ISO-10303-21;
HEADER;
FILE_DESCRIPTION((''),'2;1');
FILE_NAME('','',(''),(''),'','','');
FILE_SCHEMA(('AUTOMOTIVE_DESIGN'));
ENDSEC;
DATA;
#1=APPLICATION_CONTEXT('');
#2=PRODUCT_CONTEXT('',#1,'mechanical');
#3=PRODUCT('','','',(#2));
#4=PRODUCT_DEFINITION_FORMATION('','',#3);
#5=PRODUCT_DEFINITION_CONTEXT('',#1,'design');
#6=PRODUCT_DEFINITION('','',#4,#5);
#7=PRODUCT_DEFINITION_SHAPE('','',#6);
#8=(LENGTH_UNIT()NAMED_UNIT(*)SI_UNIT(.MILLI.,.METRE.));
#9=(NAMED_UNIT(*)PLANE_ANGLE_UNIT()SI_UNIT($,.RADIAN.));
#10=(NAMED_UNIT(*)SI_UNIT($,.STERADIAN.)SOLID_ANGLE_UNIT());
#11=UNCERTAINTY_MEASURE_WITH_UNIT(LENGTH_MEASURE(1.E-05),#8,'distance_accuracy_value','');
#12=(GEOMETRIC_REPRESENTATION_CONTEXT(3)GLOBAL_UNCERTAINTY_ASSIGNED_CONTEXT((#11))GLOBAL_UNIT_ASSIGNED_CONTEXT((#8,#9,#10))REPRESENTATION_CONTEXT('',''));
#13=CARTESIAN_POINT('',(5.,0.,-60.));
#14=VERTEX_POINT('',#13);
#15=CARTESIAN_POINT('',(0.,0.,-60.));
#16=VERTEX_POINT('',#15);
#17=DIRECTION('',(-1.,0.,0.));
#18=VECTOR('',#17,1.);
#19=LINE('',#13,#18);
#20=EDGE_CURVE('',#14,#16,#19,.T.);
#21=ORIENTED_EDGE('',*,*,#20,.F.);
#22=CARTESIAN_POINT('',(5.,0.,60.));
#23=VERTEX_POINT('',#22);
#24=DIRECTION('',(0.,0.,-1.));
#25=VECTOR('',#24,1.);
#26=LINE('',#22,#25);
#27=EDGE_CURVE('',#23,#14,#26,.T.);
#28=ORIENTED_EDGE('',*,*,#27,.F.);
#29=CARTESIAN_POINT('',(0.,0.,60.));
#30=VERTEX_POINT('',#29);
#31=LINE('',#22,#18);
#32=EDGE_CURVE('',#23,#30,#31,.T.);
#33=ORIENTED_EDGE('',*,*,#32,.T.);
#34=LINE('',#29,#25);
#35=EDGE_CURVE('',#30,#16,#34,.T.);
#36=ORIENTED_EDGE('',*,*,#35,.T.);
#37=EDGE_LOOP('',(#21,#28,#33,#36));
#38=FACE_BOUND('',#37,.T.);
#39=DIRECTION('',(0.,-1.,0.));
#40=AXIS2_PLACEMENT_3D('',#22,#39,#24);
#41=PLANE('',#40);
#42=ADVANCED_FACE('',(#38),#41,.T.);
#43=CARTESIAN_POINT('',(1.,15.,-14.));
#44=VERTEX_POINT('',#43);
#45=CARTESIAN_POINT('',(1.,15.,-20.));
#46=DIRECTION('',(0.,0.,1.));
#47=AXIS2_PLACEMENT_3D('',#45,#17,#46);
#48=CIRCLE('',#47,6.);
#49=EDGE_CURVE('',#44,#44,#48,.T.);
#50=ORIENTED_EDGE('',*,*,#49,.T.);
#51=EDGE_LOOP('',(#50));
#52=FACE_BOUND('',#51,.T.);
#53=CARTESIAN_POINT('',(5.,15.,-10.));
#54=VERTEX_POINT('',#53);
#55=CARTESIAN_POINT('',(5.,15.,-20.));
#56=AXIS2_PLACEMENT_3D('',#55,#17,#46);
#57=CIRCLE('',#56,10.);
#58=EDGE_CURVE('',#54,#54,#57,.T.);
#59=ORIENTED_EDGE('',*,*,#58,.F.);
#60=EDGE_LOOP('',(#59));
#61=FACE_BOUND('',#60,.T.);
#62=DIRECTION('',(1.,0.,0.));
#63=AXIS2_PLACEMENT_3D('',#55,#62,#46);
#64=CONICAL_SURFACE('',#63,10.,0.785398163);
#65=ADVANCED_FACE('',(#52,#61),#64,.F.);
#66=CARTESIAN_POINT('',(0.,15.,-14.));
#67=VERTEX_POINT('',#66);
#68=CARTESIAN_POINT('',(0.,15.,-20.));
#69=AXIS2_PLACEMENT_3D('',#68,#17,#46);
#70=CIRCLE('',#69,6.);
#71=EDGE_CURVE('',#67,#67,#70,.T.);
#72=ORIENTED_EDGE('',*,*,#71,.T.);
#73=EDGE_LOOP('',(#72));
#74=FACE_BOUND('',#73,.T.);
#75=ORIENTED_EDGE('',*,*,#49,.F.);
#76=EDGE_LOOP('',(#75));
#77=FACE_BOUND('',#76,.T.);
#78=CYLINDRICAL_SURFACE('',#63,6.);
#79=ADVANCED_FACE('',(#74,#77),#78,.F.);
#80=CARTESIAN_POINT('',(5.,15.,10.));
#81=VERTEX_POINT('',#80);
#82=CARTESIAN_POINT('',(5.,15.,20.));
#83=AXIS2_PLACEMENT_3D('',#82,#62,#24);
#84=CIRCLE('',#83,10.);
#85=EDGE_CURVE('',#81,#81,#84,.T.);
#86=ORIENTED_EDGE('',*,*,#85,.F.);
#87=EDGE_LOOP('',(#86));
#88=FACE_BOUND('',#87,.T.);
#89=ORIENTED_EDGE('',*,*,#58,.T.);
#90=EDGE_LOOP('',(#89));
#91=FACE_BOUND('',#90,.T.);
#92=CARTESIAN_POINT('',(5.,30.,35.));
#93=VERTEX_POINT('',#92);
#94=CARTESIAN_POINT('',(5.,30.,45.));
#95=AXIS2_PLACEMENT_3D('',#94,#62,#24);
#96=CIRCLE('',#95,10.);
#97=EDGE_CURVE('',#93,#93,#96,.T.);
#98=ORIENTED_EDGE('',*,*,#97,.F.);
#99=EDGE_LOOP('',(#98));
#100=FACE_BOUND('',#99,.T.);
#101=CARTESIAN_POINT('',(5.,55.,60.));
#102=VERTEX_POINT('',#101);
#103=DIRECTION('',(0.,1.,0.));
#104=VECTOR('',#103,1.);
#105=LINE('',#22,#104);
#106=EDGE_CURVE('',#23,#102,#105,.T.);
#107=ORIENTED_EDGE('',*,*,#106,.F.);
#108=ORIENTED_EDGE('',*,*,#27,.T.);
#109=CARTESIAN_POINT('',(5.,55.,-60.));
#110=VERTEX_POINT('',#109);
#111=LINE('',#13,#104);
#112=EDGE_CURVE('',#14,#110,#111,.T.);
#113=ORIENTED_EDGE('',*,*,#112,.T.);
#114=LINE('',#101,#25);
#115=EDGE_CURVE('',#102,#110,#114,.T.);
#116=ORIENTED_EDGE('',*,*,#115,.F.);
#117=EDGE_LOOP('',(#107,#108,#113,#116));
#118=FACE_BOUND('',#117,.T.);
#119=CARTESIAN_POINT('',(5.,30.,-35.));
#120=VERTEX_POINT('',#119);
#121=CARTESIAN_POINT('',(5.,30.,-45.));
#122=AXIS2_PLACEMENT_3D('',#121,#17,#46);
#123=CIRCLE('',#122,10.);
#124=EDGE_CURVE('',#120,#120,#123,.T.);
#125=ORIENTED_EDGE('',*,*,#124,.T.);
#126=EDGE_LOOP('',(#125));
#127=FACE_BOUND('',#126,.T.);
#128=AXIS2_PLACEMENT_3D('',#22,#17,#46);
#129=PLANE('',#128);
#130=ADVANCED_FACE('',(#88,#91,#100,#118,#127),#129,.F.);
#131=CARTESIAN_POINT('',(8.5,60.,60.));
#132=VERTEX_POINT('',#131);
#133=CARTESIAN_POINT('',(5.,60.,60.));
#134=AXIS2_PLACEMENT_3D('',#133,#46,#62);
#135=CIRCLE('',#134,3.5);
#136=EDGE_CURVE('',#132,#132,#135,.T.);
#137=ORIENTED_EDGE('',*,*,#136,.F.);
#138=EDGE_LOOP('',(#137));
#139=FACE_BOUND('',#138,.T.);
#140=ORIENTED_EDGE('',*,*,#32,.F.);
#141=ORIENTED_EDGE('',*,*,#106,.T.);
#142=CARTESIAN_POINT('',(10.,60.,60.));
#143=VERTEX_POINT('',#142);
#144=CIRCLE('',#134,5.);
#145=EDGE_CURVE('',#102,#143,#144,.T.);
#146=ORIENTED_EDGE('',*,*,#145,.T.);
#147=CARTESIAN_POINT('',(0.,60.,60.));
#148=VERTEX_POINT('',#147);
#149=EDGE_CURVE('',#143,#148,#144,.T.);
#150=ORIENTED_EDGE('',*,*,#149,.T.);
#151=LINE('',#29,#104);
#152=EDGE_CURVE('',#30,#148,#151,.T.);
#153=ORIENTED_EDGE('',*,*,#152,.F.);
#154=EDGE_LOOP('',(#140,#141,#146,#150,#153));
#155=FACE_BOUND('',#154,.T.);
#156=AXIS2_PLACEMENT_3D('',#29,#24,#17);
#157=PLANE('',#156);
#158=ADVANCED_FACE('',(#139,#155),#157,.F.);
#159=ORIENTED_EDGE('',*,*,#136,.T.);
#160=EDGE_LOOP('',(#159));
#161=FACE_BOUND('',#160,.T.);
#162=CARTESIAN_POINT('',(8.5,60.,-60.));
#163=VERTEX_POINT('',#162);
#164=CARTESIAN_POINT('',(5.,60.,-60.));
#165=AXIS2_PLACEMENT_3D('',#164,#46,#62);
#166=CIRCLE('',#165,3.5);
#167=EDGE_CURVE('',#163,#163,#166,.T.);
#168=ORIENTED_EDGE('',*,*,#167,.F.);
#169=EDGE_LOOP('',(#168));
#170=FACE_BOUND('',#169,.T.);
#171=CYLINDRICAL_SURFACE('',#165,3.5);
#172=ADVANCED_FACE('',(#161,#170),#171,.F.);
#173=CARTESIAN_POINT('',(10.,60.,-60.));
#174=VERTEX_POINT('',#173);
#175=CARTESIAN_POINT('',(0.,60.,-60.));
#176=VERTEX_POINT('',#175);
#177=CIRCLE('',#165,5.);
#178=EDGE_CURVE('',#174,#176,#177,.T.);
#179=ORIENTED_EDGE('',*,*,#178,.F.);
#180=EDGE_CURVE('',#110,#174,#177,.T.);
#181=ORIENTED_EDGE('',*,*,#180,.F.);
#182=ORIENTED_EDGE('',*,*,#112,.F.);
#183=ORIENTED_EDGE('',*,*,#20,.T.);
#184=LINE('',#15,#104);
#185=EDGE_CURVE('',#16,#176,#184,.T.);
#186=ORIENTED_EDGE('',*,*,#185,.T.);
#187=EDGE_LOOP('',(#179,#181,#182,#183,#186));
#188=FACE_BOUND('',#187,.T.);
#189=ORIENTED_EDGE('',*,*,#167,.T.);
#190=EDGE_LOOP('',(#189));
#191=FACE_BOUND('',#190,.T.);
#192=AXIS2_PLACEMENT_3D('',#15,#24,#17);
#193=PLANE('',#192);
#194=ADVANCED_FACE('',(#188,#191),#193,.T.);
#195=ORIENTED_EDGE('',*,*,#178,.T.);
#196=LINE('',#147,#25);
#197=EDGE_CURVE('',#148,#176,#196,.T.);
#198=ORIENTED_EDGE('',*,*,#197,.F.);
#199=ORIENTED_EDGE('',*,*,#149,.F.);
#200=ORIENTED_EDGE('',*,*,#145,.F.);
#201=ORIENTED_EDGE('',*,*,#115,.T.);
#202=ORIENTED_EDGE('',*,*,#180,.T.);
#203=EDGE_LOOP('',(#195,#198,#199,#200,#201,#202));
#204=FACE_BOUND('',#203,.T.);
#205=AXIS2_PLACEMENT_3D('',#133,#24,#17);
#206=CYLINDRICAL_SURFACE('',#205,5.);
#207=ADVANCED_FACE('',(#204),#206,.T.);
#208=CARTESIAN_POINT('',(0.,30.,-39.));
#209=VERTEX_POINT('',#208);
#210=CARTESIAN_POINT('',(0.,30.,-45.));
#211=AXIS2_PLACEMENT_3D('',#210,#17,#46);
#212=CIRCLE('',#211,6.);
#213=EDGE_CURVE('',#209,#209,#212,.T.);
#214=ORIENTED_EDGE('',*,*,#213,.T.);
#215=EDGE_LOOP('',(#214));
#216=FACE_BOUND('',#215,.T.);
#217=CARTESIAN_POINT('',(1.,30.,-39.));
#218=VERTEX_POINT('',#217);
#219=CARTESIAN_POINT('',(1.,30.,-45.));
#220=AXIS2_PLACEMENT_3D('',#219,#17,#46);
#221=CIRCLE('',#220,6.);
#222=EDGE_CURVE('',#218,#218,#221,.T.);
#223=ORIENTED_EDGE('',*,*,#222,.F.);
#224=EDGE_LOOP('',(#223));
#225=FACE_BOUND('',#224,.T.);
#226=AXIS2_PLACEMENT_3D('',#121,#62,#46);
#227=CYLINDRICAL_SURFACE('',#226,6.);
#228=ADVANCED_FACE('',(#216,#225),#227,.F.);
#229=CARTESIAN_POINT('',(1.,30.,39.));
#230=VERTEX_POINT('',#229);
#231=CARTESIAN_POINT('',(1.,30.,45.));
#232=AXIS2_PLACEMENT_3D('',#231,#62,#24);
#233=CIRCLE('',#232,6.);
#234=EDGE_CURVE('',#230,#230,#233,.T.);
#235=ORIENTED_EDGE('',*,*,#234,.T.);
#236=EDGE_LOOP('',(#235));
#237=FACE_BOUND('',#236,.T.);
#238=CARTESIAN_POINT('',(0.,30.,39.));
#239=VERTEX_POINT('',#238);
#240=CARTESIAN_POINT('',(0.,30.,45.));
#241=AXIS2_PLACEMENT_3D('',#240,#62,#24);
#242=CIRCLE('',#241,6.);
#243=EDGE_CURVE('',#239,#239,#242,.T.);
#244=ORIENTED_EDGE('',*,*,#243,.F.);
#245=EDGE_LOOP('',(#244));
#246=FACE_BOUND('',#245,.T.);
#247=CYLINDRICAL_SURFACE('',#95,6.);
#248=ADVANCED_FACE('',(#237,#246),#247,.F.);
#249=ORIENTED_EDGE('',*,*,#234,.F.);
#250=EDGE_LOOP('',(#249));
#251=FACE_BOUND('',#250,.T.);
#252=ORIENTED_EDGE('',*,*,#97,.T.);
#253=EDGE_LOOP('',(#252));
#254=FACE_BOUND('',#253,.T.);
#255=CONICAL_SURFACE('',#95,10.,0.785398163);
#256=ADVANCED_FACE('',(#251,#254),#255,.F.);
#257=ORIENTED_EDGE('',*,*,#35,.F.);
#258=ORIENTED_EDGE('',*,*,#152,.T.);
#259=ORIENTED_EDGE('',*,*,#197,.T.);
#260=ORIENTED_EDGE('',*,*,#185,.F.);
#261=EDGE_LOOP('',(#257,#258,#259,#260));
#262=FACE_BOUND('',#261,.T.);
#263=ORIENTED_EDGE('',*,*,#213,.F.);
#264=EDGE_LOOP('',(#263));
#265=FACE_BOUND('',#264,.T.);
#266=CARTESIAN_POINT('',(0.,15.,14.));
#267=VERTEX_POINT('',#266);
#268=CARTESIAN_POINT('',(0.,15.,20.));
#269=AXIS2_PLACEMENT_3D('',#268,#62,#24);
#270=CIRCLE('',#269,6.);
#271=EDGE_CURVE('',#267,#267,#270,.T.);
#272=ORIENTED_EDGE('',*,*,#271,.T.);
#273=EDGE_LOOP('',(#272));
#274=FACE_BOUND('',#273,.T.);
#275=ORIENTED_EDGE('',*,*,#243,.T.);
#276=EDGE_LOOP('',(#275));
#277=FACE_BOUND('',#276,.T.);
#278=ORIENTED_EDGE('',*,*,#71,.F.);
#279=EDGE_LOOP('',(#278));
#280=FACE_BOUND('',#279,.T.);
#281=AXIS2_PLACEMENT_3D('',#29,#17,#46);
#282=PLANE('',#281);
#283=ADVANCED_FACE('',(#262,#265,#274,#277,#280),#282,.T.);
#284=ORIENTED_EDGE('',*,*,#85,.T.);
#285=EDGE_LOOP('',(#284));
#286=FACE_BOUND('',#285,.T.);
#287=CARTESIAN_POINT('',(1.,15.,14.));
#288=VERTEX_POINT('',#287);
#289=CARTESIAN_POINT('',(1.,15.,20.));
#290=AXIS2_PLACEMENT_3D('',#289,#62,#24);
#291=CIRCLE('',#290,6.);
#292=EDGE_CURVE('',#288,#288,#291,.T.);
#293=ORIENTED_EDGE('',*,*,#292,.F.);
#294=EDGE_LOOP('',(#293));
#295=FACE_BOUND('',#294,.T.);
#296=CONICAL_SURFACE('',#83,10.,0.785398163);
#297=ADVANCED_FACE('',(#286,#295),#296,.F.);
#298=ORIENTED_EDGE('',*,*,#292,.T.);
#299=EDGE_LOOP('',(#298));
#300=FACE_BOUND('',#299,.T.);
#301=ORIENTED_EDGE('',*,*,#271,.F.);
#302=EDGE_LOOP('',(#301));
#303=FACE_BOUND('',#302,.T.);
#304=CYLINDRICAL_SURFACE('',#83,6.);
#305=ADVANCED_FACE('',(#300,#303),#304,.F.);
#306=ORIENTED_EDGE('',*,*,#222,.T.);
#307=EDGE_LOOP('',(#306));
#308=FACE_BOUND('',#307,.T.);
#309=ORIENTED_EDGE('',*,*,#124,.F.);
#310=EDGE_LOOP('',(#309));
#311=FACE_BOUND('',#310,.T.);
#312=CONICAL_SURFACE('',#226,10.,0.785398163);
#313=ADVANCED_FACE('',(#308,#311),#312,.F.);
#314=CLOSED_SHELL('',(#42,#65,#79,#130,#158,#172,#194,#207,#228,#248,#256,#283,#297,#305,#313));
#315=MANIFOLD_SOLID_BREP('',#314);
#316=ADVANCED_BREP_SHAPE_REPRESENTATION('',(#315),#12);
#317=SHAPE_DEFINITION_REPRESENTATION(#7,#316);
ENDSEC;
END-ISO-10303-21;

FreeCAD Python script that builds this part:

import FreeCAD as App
import Part
import Sketcher
from FreeCAD import Vector
Q = App.Units.Quantity

doc = App.newDocument("Part")
params = doc.addObject("Spreadsheet::Sheet", "Params")
for row, (alias, value) in enumerate([
    ("sketch1_width", "5 mm"),
    ("sketch1_height", "60 mm"),
    ("pad1_length", "120 mm"),
    ("sketch2_diameter", "10 mm"),
    ("sketch3_height", "120 mm"),
    ("sketch4_diameter", "7 mm"),
    ("sketch5_width", "5 mm"),
    ("sketch5_width2", "1 mm"),
    ("sketch5_height", "10 mm"),
    ("sketch5_height2", "6 mm"),
    ("groove_angle", "360 deg"),
    ("linearpattern_pitch", "29.154759 mm"),
    ("sketch6_width", "5 mm"),
    ("sketch6_width2", "1 mm"),
    ("sketch6_height", "6 mm"),
    ("sketch6_height2", "10 mm"),
    ("groove2_angle", "360 deg"),
], start=1):
    params.set(f"A{row}", alias)
    params.set(f"B{row}", "=" + value)
    params.setAlias(f"B{row}", alias)

body = doc.addObject("PartDesign::Body", "Body")

# Sketch on XY plane
sketch1 = body.newObject("Sketcher::SketchObject", "Sketch")
sketch1.AttachmentSupport = (doc.getObject("XY_Plane"), [""])
sketch1.MapMode = "FlatFace"
sketch1.addGeometry(Part.LineSegment(Vector(0, 60, 0), Vector(0, 0, 0)), False)
sketch1.addGeometry(Part.LineSegment(Vector(0, 0, 0), Vector(5, 0, 0)), False)
sketch1.addGeometry(Part.LineSegment(Vector(5, 0, 0), Vector(5, 60, 0)), False)
sketch1.addGeometry(Part.LineSegment(Vector(5, 60, 0), Vector(0, 60, 0)), False)
sketch1.addConstraint(Sketcher.Constraint("Coincident", 0, 2, 1, 1))
sketch1.addConstraint(Sketcher.Constraint("Coincident", 1, 2, 2, 1))
sketch1.addConstraint(Sketcher.Constraint("Coincident", 2, 2, 3, 1))
sketch1.addConstraint(Sketcher.Constraint("Coincident", 3, 2, 0, 1))
sketch1.addConstraint(Sketcher.Constraint("Vertical", 0))
sketch1.addConstraint(Sketcher.Constraint("Horizontal", 1))
sketch1.addConstraint(Sketcher.Constraint("Vertical", 2))
sketch1.addConstraint(Sketcher.Constraint("Horizontal", 3))
sketch1.addConstraint(Sketcher.Constraint("Coincident", 0, 2, -1, 1))
sketch1.addConstraint(Sketcher.Constraint("DistanceX", 1, 1, 1, 2, Q("5 mm")))
sketch1.addConstraint(Sketcher.Constraint("DistanceY", 0, 2, 0, 1, Q("60 mm")))
sketch1.setExpression("Constraints[9]", "Params.sketch1_width")
sketch1.setExpression("Constraints[10]", "Params.sketch1_height")
pad1 = body.newObject("PartDesign::Pad", "Pad")
pad1.Profile = sketch1
pad1.setExpression("Length", "Params.pad1_length")
pad1.Midplane = True

# Sketch on XY plane
sketch2 = body.newObject("Sketcher::SketchObject", "Sketch001")
sketch2.AttachmentSupport = (doc.getObject("XY_Plane"), [""])
sketch2.MapMode = "FlatFace"
sketch2.AttachmentOffset = App.Placement(Vector(0, 0, 60), App.Rotation())
sketch2.addGeometry(Part.Circle(Vector(5, 60, 0), Vector(0, 0, 1), 5), False)
sketch2.addConstraint(Sketcher.Constraint("Diameter", 0, Q("10 mm")))
sketch2.addConstraint(Sketcher.Constraint("DistanceX", -1, 1, 0, 3, Q("5 mm")))
sketch2.addConstraint(Sketcher.Constraint("DistanceY", -1, 1, 0, 3, Q("60 mm")))
sketch2.setExpression("Constraints[0]", "Params.sketch2_diameter")

# Sketch on XZ plane
sketch3 = body.newObject("Sketcher::SketchObject", "Sketch002")
sketch3.AttachmentSupport = (doc.getObject("XZ_Plane"), [""])
sketch3.MapMode = "FlatFace"
sketch3.AttachmentOffset = App.Placement(Vector(0, 0, -60), App.Rotation())
sketch3.addGeometry(Part.LineSegment(Vector(0, 60, 0), Vector(0, -60, 0)), False)
sketch3.addConstraint(Sketcher.Constraint("Vertical", 0))
sketch3.addConstraint(Sketcher.Constraint("Symmetric", 0, 1, 0, 2, -1, 1))
sketch3.addConstraint(Sketcher.Constraint("DistanceY", 0, 2, 0, 1, Q("120 mm")))
sketch3.setExpression("Constraints[2]", "Params.sketch3_height")
doc.recompute()

additivepipe = body.newObject("PartDesign::AdditivePipe", "AdditivePipe")
additivepipe.Profile = sketch2
additivepipe.Spine = (sketch3, ["Edge1"])

# Sketch on XY plane
sketch4 = body.newObject("Sketcher::SketchObject", "Sketch003")
sketch4.AttachmentSupport = (doc.getObject("XY_Plane"), [""])
sketch4.MapMode = "FlatFace"
sketch4.AttachmentOffset = App.Placement(Vector(0, 0, 60), App.Rotation())
sketch4.addGeometry(Part.Circle(Vector(5, 60, 0), Vector(0, 0, 1), 3.5), False)
sketch4.addConstraint(Sketcher.Constraint("Diameter", 0, Q("7 mm")))
sketch4.addConstraint(Sketcher.Constraint("DistanceX", -1, 1, 0, 3, Q("5 mm")))
sketch4.addConstraint(Sketcher.Constraint("DistanceY", -1, 1, 0, 3, Q("60 mm")))
sketch4.setExpression("Constraints[0]", "Params.sketch4_diameter")
pocket1 = body.newObject("PartDesign::Pocket", "Pocket")
pocket1.Profile = sketch4
pocket1.Type = "ThroughAll"

# Sketch on XZ plane
sketch5 = body.newObject("Sketcher::SketchObject", "Sketch004")
sketch5.AttachmentSupport = (doc.getObject("XZ_Plane"), [""])
sketch5.MapMode = "FlatFace"
sketch5.AttachmentOffset = App.Placement(Vector(0, 0, -30), App.Rotation())
sketch5.addGeometry(Part.LineSegment(Vector(0, 45, 0), Vector(5, 45, 0)), False)
sketch5.addGeometry(Part.LineSegment(Vector(5, 45, 0), Vector(5, 35, 0)), False)
sketch5.addGeometry(Part.LineSegment(Vector(5, 35, 0), Vector(1, 39, 0)), False)
sketch5.addGeometry(Part.LineSegment(Vector(1, 39, 0), Vector(0, 39, 0)), False)
sketch5.addGeometry(Part.LineSegment(Vector(0, 39, 0), Vector(0, 45, 0)), False)
sketch5.addGeometry(Part.LineSegment(Vector(5, 45, 0), Vector(0, 45, 0)), True)  # axis
sketch5.addConstraint(Sketcher.Constraint("Coincident", 0, 2, 1, 1))
sketch5.addConstraint(Sketcher.Constraint("Coincident", 1, 2, 2, 1))
sketch5.addConstraint(Sketcher.Constraint("Coincident", 2, 2, 3, 1))
sketch5.addConstraint(Sketcher.Constraint("Coincident", 3, 2, 4, 1))
sketch5.addConstraint(Sketcher.Constraint("Coincident", 4, 2, 0, 1))
sketch5.addConstraint(Sketcher.Constraint("Horizontal", 0))
sketch5.addConstraint(Sketcher.Constraint("Vertical", 1))
sketch5.addConstraint(Sketcher.Constraint("Horizontal", 3))
sketch5.addConstraint(Sketcher.Constraint("Vertical", 4))
sketch5.addConstraint(Sketcher.Constraint("Horizontal", 5))
sketch5.addConstraint(Sketcher.Constraint("Coincident", 5, 1, 0, 2))
sketch5.addConstraint(Sketcher.Constraint("PointOnObject", 3, 2, -2))
sketch5.addConstraint(Sketcher.Constraint("PointOnObject", 5, 2, -2))
sketch5.addConstraint(Sketcher.Constraint("DistanceX", 0, 1, 0, 2, Q("5 mm")))
sketch5.addConstraint(Sketcher.Constraint("DistanceX", 3, 2, 3, 1, Q("1 mm")))
sketch5.addConstraint(Sketcher.Constraint("DistanceY", 1, 2, 1, 1, Q("10 mm")))
sketch5.addConstraint(Sketcher.Constraint("DistanceY", 4, 1, 4, 2, Q("6 mm")))
sketch5.addConstraint(Sketcher.Constraint("DistanceY", -1, 1, 0, 2, Q("45 mm")))
sketch5.setExpression("Constraints[13]", "Params.sketch5_width")
sketch5.setExpression("Constraints[14]", "Params.sketch5_width2")
sketch5.setExpression("Constraints[15]", "Params.sketch5_height")
sketch5.setExpression("Constraints[16]", "Params.sketch5_height2")
groove = body.newObject("PartDesign::Groove", "Groove")
groove.Profile = sketch5
groove.ReferenceAxis = (sketch5, ["Axis0"])
groove.setExpression("Angle", "Params.groove_angle")
doc.recompute()

datumline = body.newObject("PartDesign::Line", "DatumLine")
datumline.Placement = App.Placement(Vector(0, 0, 0), App.Rotation(Vector(0, 0, 1), Vector(0, -0.514495755, -0.857492926)))
linearpattern = body.newObject("PartDesign::LinearPattern", "LinearPattern")
linearpattern.Originals = [groove]
linearpattern.Direction = (datumline, [""])
linearpattern.Mode = "offset"
linearpattern.setExpression("Offset", "Params.linearpattern_pitch")
linearpattern.Occurrences = 2
body.Tip = linearpattern
doc.recompute()

mirrored = body.newObject("PartDesign::Mirrored", "Mirrored")
mirrored.Originals = [groove]
mirrored.MirrorPlane = (doc.getObject("XY_Plane"), [""])
body.Tip = mirrored

# Sketch on XZ plane
sketch6 = body.newObject("Sketcher::SketchObject", "Sketch005")
sketch6.AttachmentSupport = (doc.getObject("XZ_Plane"), [""])
sketch6.MapMode = "FlatFace"
sketch6.AttachmentOffset = App.Placement(Vector(0, 0, -15), App.Rotation())
sketch6.addGeometry(Part.LineSegment(Vector(5, -20, 0), Vector(0, -20, 0)), False)
sketch6.addGeometry(Part.LineSegment(Vector(0, -20, 0), Vector(0, -14, 0)), False)
sketch6.addGeometry(Part.LineSegment(Vector(0, -14, 0), Vector(1, -14, 0)), False)
sketch6.addGeometry(Part.LineSegment(Vector(1, -14, 0), Vector(5, -10, 0)), False)
sketch6.addGeometry(Part.LineSegment(Vector(5, -10, 0), Vector(5, -20, 0)), False)
sketch6.addGeometry(Part.LineSegment(Vector(0, -20, 0), Vector(5, -20, 0)), True)  # axis
sketch6.addConstraint(Sketcher.Constraint("Coincident", 0, 2, 1, 1))
sketch6.addConstraint(Sketcher.Constraint("Coincident", 1, 2, 2, 1))
sketch6.addConstraint(Sketcher.Constraint("Coincident", 2, 2, 3, 1))
sketch6.addConstraint(Sketcher.Constraint("Coincident", 3, 2, 4, 1))
sketch6.addConstraint(Sketcher.Constraint("Coincident", 4, 2, 0, 1))
sketch6.addConstraint(Sketcher.Constraint("Horizontal", 0))
sketch6.addConstraint(Sketcher.Constraint("Vertical", 1))
sketch6.addConstraint(Sketcher.Constraint("Horizontal", 2))
sketch6.addConstraint(Sketcher.Constraint("Vertical", 4))
sketch6.addConstraint(Sketcher.Constraint("Horizontal", 5))
sketch6.addConstraint(Sketcher.Constraint("Coincident", 5, 1, 0, 2))
sketch6.addConstraint(Sketcher.Constraint("PointOnObject", 0, 2, -2))
sketch6.addConstraint(Sketcher.Constraint("Vertical", 3, 2, 5, 2))
sketch6.addConstraint(Sketcher.Constraint("DistanceX", 0, 2, 0, 1, Q("5 mm")))
sketch6.addConstraint(Sketcher.Constraint("DistanceX", 2, 1, 2, 2, Q("1 mm")))
sketch6.addConstraint(Sketcher.Constraint("DistanceY", 1, 1, 1, 2, Q("6 mm")))
sketch6.addConstraint(Sketcher.Constraint("DistanceY", 4, 2, 4, 1, Q("10 mm")))
sketch6.addConstraint(Sketcher.Constraint("DistanceY", 0, 2, -1, 1, Q("20 mm")))
sketch6.setExpression("Constraints[13]", "Params.sketch6_width")
sketch6.setExpression("Constraints[14]", "Params.sketch6_width2")
sketch6.setExpression("Constraints[15]", "Params.sketch6_height")
sketch6.setExpression("Constraints[16]", "Params.sketch6_height2")
groove2 = body.newObject("PartDesign::Groove", "Groove001")
groove2.Profile = sketch6
groove2.ReferenceAxis = (sketch6, ["Axis0"])
groove2.setExpression("Angle", "Params.groove2_angle")

doc.recompute()
